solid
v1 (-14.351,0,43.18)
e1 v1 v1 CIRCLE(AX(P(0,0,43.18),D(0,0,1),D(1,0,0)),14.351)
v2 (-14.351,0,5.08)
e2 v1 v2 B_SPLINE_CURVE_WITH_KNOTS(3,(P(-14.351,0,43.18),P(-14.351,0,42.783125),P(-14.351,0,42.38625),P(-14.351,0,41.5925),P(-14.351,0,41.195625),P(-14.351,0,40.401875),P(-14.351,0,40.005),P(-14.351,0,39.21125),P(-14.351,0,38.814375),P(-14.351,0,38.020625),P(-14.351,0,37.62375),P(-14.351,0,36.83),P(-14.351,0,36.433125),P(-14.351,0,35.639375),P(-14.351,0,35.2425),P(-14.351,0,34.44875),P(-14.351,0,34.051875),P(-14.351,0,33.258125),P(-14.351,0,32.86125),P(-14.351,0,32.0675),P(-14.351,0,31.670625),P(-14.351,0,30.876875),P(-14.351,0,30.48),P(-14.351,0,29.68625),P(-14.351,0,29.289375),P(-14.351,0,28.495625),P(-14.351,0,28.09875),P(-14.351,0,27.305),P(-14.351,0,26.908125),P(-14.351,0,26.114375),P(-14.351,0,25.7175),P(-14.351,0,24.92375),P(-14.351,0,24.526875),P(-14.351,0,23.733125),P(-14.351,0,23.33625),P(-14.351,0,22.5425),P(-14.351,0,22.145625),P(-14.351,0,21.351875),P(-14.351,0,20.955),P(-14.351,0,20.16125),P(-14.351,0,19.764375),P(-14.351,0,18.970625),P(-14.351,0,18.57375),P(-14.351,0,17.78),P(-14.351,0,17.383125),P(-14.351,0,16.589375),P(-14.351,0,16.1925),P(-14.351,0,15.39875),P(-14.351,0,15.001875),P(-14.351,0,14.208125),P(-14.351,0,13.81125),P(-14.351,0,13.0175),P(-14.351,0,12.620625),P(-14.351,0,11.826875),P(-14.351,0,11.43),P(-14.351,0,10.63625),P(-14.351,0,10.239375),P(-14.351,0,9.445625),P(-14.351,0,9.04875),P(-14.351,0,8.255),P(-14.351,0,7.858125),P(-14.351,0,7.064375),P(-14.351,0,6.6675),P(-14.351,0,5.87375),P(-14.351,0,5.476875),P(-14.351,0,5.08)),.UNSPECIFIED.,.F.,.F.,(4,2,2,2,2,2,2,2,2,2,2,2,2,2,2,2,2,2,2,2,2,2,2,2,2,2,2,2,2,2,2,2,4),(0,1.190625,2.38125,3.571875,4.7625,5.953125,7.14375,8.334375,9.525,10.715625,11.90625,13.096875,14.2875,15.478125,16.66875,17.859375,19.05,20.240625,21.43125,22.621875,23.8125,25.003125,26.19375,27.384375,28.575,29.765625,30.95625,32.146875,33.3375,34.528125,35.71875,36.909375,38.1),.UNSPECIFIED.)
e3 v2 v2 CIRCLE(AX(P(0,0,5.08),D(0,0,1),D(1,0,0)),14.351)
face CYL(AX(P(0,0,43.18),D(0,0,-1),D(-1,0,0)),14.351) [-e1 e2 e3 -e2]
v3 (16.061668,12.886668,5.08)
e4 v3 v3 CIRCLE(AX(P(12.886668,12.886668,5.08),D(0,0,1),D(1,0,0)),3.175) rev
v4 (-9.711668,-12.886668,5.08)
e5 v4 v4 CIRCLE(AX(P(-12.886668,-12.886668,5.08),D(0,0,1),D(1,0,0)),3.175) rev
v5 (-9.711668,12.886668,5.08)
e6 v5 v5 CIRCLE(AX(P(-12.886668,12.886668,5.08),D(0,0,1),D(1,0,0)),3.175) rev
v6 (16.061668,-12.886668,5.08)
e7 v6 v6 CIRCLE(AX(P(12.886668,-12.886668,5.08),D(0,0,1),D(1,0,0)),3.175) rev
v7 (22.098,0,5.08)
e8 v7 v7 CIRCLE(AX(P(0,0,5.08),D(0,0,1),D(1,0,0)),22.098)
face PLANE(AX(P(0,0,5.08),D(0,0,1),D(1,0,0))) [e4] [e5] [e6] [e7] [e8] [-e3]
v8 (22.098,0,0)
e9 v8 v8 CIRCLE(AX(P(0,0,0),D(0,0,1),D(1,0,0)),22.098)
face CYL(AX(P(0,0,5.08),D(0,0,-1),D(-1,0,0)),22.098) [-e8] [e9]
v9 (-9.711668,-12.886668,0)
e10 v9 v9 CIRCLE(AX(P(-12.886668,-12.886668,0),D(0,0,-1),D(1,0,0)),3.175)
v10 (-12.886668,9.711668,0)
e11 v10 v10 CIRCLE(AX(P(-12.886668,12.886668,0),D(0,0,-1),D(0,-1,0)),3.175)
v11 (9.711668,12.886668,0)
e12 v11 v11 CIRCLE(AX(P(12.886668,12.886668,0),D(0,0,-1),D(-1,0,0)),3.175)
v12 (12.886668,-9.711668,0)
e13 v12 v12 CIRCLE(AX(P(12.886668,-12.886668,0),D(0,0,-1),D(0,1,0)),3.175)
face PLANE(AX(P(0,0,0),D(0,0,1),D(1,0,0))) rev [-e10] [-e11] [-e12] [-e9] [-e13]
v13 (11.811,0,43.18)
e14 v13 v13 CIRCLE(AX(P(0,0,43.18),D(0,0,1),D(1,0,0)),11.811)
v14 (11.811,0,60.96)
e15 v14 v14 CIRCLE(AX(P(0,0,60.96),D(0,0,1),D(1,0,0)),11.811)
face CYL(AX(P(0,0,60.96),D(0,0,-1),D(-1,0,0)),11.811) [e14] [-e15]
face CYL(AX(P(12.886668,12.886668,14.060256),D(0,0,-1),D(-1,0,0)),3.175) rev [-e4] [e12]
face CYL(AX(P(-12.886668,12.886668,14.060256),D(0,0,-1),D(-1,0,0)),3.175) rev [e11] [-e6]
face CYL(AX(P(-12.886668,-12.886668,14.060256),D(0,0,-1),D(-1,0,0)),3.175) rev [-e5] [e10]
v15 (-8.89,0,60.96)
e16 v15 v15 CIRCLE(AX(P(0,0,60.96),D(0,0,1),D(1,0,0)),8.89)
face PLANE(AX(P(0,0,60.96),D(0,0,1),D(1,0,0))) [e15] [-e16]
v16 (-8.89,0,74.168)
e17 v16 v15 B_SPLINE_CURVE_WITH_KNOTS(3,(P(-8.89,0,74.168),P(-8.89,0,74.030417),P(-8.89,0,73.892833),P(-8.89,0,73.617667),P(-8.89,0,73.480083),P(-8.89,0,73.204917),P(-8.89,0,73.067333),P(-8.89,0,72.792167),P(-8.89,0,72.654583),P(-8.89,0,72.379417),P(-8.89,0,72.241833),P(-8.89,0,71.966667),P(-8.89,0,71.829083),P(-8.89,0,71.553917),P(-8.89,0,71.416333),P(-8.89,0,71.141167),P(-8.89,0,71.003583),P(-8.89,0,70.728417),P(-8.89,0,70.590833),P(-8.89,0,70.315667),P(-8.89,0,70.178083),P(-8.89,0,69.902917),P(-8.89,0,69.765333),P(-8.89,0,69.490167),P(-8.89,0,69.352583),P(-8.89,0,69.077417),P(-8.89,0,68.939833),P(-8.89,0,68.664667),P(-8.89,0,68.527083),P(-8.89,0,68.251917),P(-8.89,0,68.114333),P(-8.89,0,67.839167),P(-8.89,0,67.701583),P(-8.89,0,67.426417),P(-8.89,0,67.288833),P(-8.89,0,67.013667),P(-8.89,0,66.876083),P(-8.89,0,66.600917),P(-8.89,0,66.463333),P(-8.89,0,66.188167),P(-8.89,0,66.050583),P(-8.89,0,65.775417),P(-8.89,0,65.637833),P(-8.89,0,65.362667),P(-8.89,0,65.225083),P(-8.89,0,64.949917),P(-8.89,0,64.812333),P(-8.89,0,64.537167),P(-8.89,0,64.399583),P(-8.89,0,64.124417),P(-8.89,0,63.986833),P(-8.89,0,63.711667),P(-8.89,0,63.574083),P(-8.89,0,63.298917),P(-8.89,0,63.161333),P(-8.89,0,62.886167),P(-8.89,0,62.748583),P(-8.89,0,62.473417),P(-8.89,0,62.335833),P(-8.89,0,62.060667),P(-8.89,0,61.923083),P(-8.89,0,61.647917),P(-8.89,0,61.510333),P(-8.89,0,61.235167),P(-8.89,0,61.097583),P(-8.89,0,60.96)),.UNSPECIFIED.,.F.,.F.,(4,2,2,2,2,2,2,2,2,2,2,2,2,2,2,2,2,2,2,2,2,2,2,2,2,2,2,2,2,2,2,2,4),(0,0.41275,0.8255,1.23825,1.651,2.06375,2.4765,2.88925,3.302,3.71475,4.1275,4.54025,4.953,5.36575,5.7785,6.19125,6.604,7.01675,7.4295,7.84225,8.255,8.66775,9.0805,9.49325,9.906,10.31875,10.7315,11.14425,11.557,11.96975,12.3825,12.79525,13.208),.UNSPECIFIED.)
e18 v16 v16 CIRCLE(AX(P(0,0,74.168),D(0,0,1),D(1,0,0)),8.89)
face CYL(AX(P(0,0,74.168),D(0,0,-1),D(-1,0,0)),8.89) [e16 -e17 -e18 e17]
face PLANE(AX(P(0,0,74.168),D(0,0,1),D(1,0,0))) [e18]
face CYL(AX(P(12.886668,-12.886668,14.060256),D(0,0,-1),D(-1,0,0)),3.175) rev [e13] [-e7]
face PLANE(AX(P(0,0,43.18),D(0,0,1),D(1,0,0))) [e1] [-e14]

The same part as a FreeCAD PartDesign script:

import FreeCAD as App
import Part
import Sketcher

V = App.Vector
Q = App.Units.Quantity

doc = App.newDocument("Part")
body = doc.addObject("PartDesign::Body", "Body")

# Sketch on XY plane
sketch1 = body.newObject("Sketcher::SketchObject", "Sketch")
sketch1.AttachmentSupport = (doc.getObject("XY_Plane"), [""])
sketch1.MapMode = "FlatFace"
sketch1.addGeometry(Part.Circle(V(0, 0, 0), V(0, 0, 1), 22), False)
sketch1.addConstraint(Sketcher.Constraint("Coincident", 0, 3, -1, 1))
sketch1.addConstraint(Sketcher.Constraint("Diameter", 0, Q("1.74 in")))
pad1 = body.newObject("PartDesign::Pad", "Pad")
pad1.Profile = sketch1
pad1.Length = Q("0.2 in")

# Sketch on XY plane
sketch2 = body.newObject("Sketcher::SketchObject", "Sketch001")
sketch2.AttachmentSupport = (doc.getObject("XY_Plane"), [""])
sketch2.MapMode = "FlatFace"
sketch2.AttachmentOffset = App.Placement(V(0, 0, 0.2 * 25.4), App.Rotation())
sketch2.addGeometry(Part.Circle(V(0, 0, 0), V(0, 0, 1), 14), False)
sketch2.addConstraint(Sketcher.Constraint("Coincident", 0, 3, -1, 1))
sketch2.addConstraint(Sketcher.Constraint("Diameter", 0, Q("1.13 in")))
pad2 = body.newObject("PartDesign::Pad", "Pad001")
pad2.Profile = sketch2
pad2.Length = Q("1.5 in")

# Sketch on XY plane
sketch3 = body.newObject("Sketcher::SketchObject", "Sketch002")
sketch3.AttachmentSupport = (doc.getObject("XY_Plane"), [""])
sketch3.MapMode = "FlatFace"
sketch3.AttachmentOffset = App.Placement(V(0, 0, 1.7 * 25.4), App.Rotation())
sketch3.addGeometry(Part.Circle(V(0, 0, 0), V(0, 0, 1), 12), False)
sketch3.addConstraint(Sketcher.Constraint("Coincident", 0, 3, -1, 1))
sketch3.addConstraint(Sketcher.Constraint("Diameter", 0, Q("0.93 in")))
pad3 = body.newObject("PartDesign::Pad", "Pad002")
pad3.Profile = sketch3
pad3.Length = Q("0.7 in")

# Sketch on XY plane
sketch4 = body.newObject("Sketcher::SketchObject", "Sketch003")
sketch4.AttachmentSupport = (doc.getObject("XY_Plane"), [""])
sketch4.MapMode = "FlatFace"
sketch4.AttachmentOffset = App.Placement(V(0, 0, 2.4 * 25.4), App.Rotation())
sketch4.addGeometry(Part.Circle(V(0, 0, 0), V(0, 0, 1), 9), False)
sketch4.addConstraint(Sketcher.Constraint("Coincident", 0, 3, -1, 1))
sketch4.addConstraint(Sketcher.Constraint("Diameter", 0, Q("0.7 in")))
pad4 = body.newObject("PartDesign::Pad", "Pad003")
pad4.Profile = sketch4
pad4.Length = Q("0.52 in")

# Sketch on XY plane
sketch5 = body.newObject("Sketcher::SketchObject", "Sketch004")
sketch5.AttachmentSupport = (doc.getObject("XY_Plane"), [""])
sketch5.MapMode = "FlatFace"
sketch5.addGeometry(Part.Circle(V(12.9, 12.9, 0), V(0, 0, 1), 3.2), False)
sketch5.addConstraint(Sketcher.Constraint("Diameter", 0, Q("0.25 in")))
sketch5.addConstraint(Sketcher.Constraint("DistanceX", -1, 1, 0, 3, Q("12.886668 mm")))
sketch5.addConstraint(Sketcher.Constraint("DistanceY", -1, 1, 0, 3, Q("12.886668 mm")))
pocket1 = body.newObject("PartDesign::Pocket", "Pocket")
pocket1.Profile = sketch5
pocket1.Length = Q("0.2 in")
pocket1.Reversed = True
doc.recompute()

polarpattern = body.newObject("PartDesign::PolarPattern", "PolarPattern")
polarpattern.Originals = [pocket1]
polarpattern.Axis = (doc.getObject("Z_Axis"), [""])
polarpattern.Angle = 360
polarpattern.Occurrences = 4
body.Tip = polarpattern

doc.recompute()
